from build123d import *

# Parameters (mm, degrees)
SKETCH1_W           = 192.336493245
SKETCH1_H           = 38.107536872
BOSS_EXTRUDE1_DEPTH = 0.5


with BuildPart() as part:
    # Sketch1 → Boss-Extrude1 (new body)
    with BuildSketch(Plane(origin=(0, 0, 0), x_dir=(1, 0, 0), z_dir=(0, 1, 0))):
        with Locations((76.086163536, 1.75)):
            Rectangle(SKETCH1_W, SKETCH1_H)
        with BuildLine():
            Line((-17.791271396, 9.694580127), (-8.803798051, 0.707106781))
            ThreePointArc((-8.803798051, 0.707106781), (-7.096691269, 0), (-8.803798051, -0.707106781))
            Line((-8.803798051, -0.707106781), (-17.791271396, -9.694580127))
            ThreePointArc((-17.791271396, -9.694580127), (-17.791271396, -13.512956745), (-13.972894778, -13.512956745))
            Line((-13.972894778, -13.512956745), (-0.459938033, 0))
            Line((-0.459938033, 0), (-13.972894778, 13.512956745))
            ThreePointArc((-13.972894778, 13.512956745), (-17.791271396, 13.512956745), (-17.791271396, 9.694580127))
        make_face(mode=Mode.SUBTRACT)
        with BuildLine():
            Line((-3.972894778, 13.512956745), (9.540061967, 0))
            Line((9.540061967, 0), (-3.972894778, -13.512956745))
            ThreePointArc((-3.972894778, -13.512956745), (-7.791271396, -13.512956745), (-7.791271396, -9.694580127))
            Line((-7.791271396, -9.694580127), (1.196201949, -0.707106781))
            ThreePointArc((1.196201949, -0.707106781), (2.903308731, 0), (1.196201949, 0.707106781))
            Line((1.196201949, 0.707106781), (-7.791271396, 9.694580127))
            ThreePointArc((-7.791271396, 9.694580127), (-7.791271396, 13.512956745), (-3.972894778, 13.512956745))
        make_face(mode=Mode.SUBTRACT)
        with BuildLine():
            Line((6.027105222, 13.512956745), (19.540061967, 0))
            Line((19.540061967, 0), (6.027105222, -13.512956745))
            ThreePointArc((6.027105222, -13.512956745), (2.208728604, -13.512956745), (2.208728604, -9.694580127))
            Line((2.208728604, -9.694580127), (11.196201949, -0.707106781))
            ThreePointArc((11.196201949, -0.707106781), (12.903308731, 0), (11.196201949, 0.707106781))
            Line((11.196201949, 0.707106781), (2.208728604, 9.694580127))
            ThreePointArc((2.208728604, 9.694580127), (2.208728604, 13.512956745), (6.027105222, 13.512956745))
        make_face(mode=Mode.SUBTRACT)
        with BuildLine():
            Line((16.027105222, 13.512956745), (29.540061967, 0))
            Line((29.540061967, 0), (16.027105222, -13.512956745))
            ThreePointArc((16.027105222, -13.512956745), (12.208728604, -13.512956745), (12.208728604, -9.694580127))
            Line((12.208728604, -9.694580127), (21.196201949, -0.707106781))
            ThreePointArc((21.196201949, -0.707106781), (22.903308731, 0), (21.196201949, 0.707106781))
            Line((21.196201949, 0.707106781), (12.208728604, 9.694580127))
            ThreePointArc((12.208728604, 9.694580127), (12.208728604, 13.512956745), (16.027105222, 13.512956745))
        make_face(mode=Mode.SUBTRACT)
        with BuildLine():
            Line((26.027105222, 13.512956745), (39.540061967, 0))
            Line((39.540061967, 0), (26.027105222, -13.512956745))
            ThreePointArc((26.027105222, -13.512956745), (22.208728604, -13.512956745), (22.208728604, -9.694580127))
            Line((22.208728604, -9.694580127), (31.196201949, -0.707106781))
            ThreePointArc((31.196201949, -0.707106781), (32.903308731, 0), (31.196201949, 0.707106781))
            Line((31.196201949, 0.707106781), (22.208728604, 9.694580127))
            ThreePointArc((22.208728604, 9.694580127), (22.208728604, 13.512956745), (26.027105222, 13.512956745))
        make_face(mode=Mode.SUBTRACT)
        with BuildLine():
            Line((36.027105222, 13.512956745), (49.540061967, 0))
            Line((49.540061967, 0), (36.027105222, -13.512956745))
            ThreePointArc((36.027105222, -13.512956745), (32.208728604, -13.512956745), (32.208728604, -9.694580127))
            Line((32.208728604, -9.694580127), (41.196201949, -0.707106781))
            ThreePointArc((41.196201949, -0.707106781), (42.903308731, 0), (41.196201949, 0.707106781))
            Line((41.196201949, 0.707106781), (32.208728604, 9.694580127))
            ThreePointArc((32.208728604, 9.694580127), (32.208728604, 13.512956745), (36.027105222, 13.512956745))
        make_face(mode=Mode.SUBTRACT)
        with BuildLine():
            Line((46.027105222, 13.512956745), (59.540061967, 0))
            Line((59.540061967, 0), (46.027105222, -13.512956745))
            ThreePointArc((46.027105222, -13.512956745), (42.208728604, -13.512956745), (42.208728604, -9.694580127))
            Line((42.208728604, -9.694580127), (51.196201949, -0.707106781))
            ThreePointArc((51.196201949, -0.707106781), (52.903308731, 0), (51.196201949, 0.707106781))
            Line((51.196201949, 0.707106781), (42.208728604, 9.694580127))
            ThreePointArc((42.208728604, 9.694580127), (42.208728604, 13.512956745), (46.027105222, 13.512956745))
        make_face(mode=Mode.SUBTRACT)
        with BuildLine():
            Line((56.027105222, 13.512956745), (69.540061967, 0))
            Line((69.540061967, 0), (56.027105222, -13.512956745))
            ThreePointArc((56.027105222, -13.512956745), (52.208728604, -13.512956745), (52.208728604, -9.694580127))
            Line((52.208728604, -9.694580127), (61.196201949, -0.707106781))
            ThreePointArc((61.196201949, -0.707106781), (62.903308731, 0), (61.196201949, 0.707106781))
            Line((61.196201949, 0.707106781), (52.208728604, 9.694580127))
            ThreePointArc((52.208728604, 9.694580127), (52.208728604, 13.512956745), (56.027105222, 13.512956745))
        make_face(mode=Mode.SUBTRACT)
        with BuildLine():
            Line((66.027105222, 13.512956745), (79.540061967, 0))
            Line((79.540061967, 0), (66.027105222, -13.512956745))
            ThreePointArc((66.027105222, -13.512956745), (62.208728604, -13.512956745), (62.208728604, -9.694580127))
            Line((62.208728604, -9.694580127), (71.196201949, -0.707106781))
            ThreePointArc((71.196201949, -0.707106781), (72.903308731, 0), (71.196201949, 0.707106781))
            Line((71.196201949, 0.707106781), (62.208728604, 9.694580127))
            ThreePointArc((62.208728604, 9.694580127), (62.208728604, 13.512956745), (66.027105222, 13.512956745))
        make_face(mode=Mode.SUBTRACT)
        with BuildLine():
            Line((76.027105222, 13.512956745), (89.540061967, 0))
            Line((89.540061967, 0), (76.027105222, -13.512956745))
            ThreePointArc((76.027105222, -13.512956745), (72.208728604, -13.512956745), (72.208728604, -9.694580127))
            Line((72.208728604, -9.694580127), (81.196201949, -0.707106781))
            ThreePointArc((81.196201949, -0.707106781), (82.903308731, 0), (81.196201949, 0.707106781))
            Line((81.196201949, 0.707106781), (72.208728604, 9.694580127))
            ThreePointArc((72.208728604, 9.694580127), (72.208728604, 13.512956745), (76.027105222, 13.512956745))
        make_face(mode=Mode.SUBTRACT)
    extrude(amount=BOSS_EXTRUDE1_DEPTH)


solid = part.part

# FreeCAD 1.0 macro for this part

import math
import FreeCAD as App
import Part
import Sketcher
from FreeCAD import Vector

doc = App.newDocument("Part")
body = doc.addObject("PartDesign::Body", "Body")

sketch1 = doc.addObject("Sketcher::SketchObject", "Sketch")
body.addObject(sketch1)
sketch1.AttachmentSupport = (doc.XZ_Plane, [""])
sketch1.MapMode = "FlatFace"
sketch1.addGeometry(Part.LineSegment(Vector(-20.1, -20.8, 0), Vector(-20.1, 17.3, 0)), False)
sketch1.addGeometry(Part.LineSegment(Vector(-20.1, 17.3, 0), Vector(172.3, 17.3, 0)), False)
sketch1.addGeometry(Part.LineSegment(Vector(172.3, 17.3, 0), Vector(172.3, -20.8, 0)), False)
sketch1.addGeometry(Part.LineSegment(Vector(172.3, -20.8, 0), Vector(-20.1, -20.8, 0)), False)
sketch1.addGeometry(Part.ArcOfCircle(Part.Circle(Vector(24.1, -11.6, 0), Vector(0, 0, 1), 2.7), math.radians(135), math.radians(315)), False)
sketch1.addGeometry(Part.LineSegment(Vector(26, -13.5, 0), Vector(39.5, 0, 0)), False)
sketch1.addGeometry(Part.LineSegment(Vector(39.5, 0, 0), Vector(26, 13.5, 0)), False)
sketch1.addGeometry(Part.ArcOfCircle(Part.Circle(Vector(24.1, 11.6, 0), Vector(0, 0, 1), 2.7), math.radians(45), math.radians(225)), False)
sketch1.addGeometry(Part.LineSegment(Vector(22.2, 9.7, 0), Vector(31.2, 0.7, 0)), False)
sketch1.addGeometry(Part.ArcOfCircle(Part.Circle(Vector(31.9, 0, 0), Vector(0, 0, 1), 1), math.radians(-135), math.radians(135)), False)
sketch1.addGeometry(Part.LineSegment(Vector(31.2, -0.7, 0), Vector(22.2, -9.7, 0)), False)
sketch1.addGeometry(Part.LineSegment(Vector(-8.8, -0.7, 0), Vector(-17.8, -9.7, 0)), False)
sketch1.addGeometry(Part.ArcOfCircle(Part.Circle(Vector(-15.9, -11.6, 0), Vector(0, 0, 1), 2.7), math.radians(135), math.radians(315)), False)
sketch1.addGeometry(Part.LineSegment(Vector(-14, -13.5, 0), Vector(-0.5, 0, 0)), False)
sketch1.addGeometry(Part.LineSegment(Vector(-0.5, 0, 0), Vector(-14, 13.5, 0)), False)
sketch1.addGeometry(Part.ArcOfCircle(Part.Circle(Vector(-15.9, 11.6, 0), Vector(0, 0, 1), 2.7), math.radians(45), math.radians(225)), False)
sketch1.addGeometry(Part.LineSegment(Vector(-17.8, 9.7, 0), Vector(-8.8, 0.7, 0)), False)
sketch1.addGeometry(Part.ArcOfCircle(Part.Circle(Vector(-8.1, 0, 0), Vector(0, 0, 1), 1), math.radians(-135), math.radians(135)), False)
sketch1.addGeometry(Part.ArcOfCircle(Part.Circle(Vector(-5.9, -11.6, 0), Vector(0, 0, 1), 2.7), math.radians(135), math.radians(315)), False)
sketch1.addGeometry(Part.LineSegment(Vector(-4, -13.5, 0), Vector(9.5, 0, 0)), False)
sketch1.addGeometry(Part.LineSegment(Vector(9.5, 0, 0), Vector(-4, 13.5, 0)), False)
sketch1.addGeometry(Part.ArcOfCircle(Part.Circle(Vector(-5.9, 11.6, 0), Vector(0, 0, 1), 2.7), math.radians(45), math.radians(225)), False)
sketch1.addGeometry(Part.LineSegment(Vector(-7.8, 9.7, 0), Vector(1.2, 0.7, 0)), False)
sketch1.addGeometry(Part.ArcOfCircle(Part.Circle(Vector(1.9, 0, 0), Vector(0, 0, 1), 1), math.radians(-135), math.radians(135)), False)
sketch1.addGeometry(Part.LineSegment(Vector(1.2, -0.7, 0), Vector(-7.8, -9.7, 0)), False)
sketch1.addGeometry(Part.ArcOfCircle(Part.Circle(Vector(4.1, -11.6, 0), Vector(0, 0, 1), 2.7), math.radians(135), math.radians(315)), False)
sketch1.addGeometry(Part.LineSegment(Vector(6, -13.5, 0), Vector(19.5, 0, 0)), False)
sketch1.addGeometry(Part.LineSegment(Vector(19.5, 0, 0), Vector(6, 13.5, 0)), False)
sketch1.addGeometry(Part.ArcOfCircle(Part.Circle(Vector(4.1, 11.6, 0), Vector(0, 0, 1), 2.7), math.radians(45), math.radians(225)), False)
sketch1.addGeometry(Part.LineSegment(Vector(2.2, 9.7, 0), Vector(11.2, 0.7, 0)), False)
sketch1.addGeometry(Part.ArcOfCircle(Part.Circle(Vector(11.9, 0, 0), Vector(0, 0, 1), 1), math.radians(-135), math.radians(135)), False)
sketch1.addGeometry(Part.LineSegment(Vector(11.2, -0.7, 0), Vector(2.2, -9.7, 0)), False)
sketch1.addGeometry(Part.ArcOfCircle(Part.Circle(Vector(14.1, -11.6, 0), Vector(0, 0, 1), 2.7), math.radians(135), math.radians(315)), False)
sketch1.addGeometry(Part.LineSegment(Vector(16, -13.5, 0), Vector(29.5, 0, 0)), False)
sketch1.addGeometry(Part.LineSegment(Vector(29.5, 0, 0), Vector(16, 13.5, 0)), False)
sketch1.addGeometry(Part.ArcOfCircle(Part.Circle(Vector(14.1, 11.6, 0), Vector(0, 0, 1), 2.7), math.radians(45), math.radians(225)), False)
sketch1.addGeometry(Part.LineSegment(Vector(12.2, 9.7, 0), Vector(21.2, 0.7, 0)), False)
sketch1.addGeometry(Part.ArcOfCircle(Part.Circle(Vector(21.9, 0, 0), Vector(0, 0, 1), 1), math.radians(-135), math.radians(135)), False)
sketch1.addGeometry(Part.LineSegment(Vector(21.2, -0.7, 0), Vector(12.2, -9.7, 0)), False)
sketch1.addGeometry(Part.ArcOfCircle(Part.Circle(Vector(34.1, -11.6, 0), Vector(0, 0, 1), 2.7), math.radians(135), math.radians(315)), False)
sketch1.addGeometry(Part.LineSegment(Vector(36, -13.5, 0), Vector(49.5, 0, 0)), False)
sketch1.addGeometry(Part.LineSegment(Vector(49.5, 0, 0), Vector(36, 13.5, 0)), False)
sketch1.addGeometry(Part.ArcOfCircle(Part.Circle(Vector(34.1, 11.6, 0), Vector(0, 0, 1), 2.7), math.radians(45), math.radians(225)), False)
sketch1.addGeometry(Part.LineSegment(Vector(32.2, 9.7, 0), Vector(41.2, 0.7, 0)), False)
sketch1.addGeometry(Part.ArcOfCircle(Part.Circle(Vector(41.9, 0, 0), Vector(0, 0, 1), 1), math.radians(-135), math.radians(135)), False)
sketch1.addGeometry(Part.LineSegment(Vector(41.2, -0.7, 0), Vector(32.2, -9.7, 0)), False)
sketch1.addGeometry(Part.ArcOfCircle(Part.Circle(Vector(44.1, -11.6, 0), Vector(0, 0, 1), 2.7), math.radians(135), math.radians(315)), False)
sketch1.addGeometry(Part.LineSegment(Vector(46, -13.5, 0), Vector(59.5, 0, 0)), False)
sketch1.addGeometry(Part.LineSegment(Vector(59.5, 0, 0), Vector(46, 13.5, 0)), False)
sketch1.addGeometry(Part.ArcOfCircle(Part.Circle(Vector(44.1, 11.6, 0), Vector(0, 0, 1), 2.7), math.radians(45), math.radians(225)), False)
sketch1.addGeometry(Part.LineSegment(Vector(42.2, 9.7, 0), Vector(51.2, 0.7, 0)), False)
sketch1.addGeometry(Part.ArcOfCircle(Part.Circle(Vector(51.9, 0, 0), Vector(0, 0, 1), 1), math.radians(-135), math.radians(135)), False)
sketch1.addGeometry(Part.LineSegment(Vector(51.2, -0.7, 0), Vector(42.2, -9.7, 0)), False)
sketch1.addGeometry(Part.ArcOfCircle(Part.Circle(Vector(54.1, -11.6, 0), Vector(0, 0, 1), 2.7), math.radians(135), math.radians(315)), False)
sketch1.addGeometry(Part.LineSegment(Vector(56, -13.5, 0), Vector(69.5, 0, 0)), False)
sketch1.addGeometry(Part.LineSegment(Vector(69.5, 0, 0), Vector(56, 13.5, 0)), False)
sketch1.addGeometry(Part.ArcOfCircle(Part.Circle(Vector(54.1, 11.6, 0), Vector(0, 0, 1), 2.7), math.radians(45), math.radians(225)), False)
sketch1.addGeometry(Part.LineSegment(Vector(52.2, 9.7, 0), Vector(61.2, 0.7, 0)), False)
sketch1.addGeometry(Part.ArcOfCircle(Part.Circle(Vector(61.9, 0, 0), Vector(0, 0, 1), 1), math.radians(-135), math.radians(135)), False)
sketch1.addGeometry(Part.LineSegment(Vector(61.2, -0.7, 0), Vector(52.2, -9.7, 0)), False)
sketch1.addGeometry(Part.ArcOfCircle(Part.Circle(Vector(64.1, -11.6, 0), Vector(0, 0, 1), 2.7), math.radians(135), math.radians(315)), False)
sketch1.addGeometry(Part.LineSegment(Vector(66, -13.5, 0), Vector(79.5, 0, 0)), False)
sketch1.addGeometry(Part.LineSegment(Vector(79.5, 0, 0), Vector(66, 13.5, 0)), False)
sketch1.addGeometry(Part.ArcOfCircle(Part.Circle(Vector(64.1, 11.6, 0), Vector(0, 0, 1), 2.7), math.radians(45), math.radians(225)), False)
sketch1.addGeometry(Part.LineSegment(Vector(62.2, 9.7, 0), Vector(71.2, 0.7, 0)), False)
sketch1.addGeometry(Part.ArcOfCircle(Part.Circle(Vector(71.9, 0, 0), Vector(0, 0, 1), 1), math.radians(-135), math.radians(135)), False)
sketch1.addGeometry(Part.LineSegment(Vector(71.2, -0.7, 0), Vector(62.2, -9.7, 0)), False)
sketch1.addGeometry(Part.ArcOfCircle(Part.Circle(Vector(74.1, -11.6, 0), Vector(0, 0, 1), 2.7), math.radians(135), math.radians(315)), False)
sketch1.addGeometry(Part.LineSegment(Vector(76, -13.5, 0), Vector(89.5, 0, 0)), False)
sketch1.addGeometry(Part.LineSegment(Vector(89.5, 0, 0), Vector(76, 13.5, 0)), False)
sketch1.addGeometry(Part.ArcOfCircle(Part.Circle(Vector(74.1, 11.6, 0), Vector(0, 0, 1), 2.7), math.radians(45), math.radians(225)), False)
sketch1.addGeometry(Part.LineSegment(Vector(72.2, 9.7, 0), Vector(81.2, 0.7, 0)), False)
sketch1.addGeometry(Part.ArcOfCircle(Part.Circle(Vector(81.9, 0, 0), Vector(0, 0, 1), 1), math.radians(-135), math.radians(135)), False)
sketch1.addGeometry(Part.LineSegment(Vector(81.2, -0.7, 0), Vector(72.2, -9.7, 0)), False)
sketch1.addConstraint(Sketcher.Constraint("Coincident", 0, 2, 1, 1))
sketch1.addConstraint(Sketcher.Constraint("Coincident", 1, 2, 2, 1))
sketch1.addConstraint(Sketcher.Constraint("Coincident", 2, 2, 3, 1))
sketch1.addConstraint(Sketcher.Constraint("Coincident", 3, 2, 0, 1))
sketch1.addConstraint(Sketcher.Constraint("Tangent", 4, 2, 5, 1))
sketch1.addConstraint(Sketcher.Constraint("Coincident", 5, 2, 6, 1))
sketch1.addConstraint(Sketcher.Constraint("Tangent", 6, 2, 7, 1))
sketch1.addConstraint(Sketcher.Constraint("Tangent", 7, 2, 8, 1))
sketch1.addConstraint(Sketcher.Constraint("Coincident", 8, 2, 9, 2))
sketch1.addConstraint(Sketcher.Constraint("Coincident", 9, 1, 10, 1))
sketch1.addConstraint(Sketcher.Constraint("Tangent", 10, 2, 4, 1))
sketch1.addConstraint(Sketcher.Constraint("Tangent", 11, 2, 12, 1))
sketch1.addConstraint(Sketcher.Constraint("Tangent", 12, 2, 13, 1))
sketch1.addConstraint(Sketcher.Constraint("Coincident", 13, 2, 14, 1))
sketch1.addConstraint(Sketcher.Constraint("Tangent", 14, 2, 15, 1))
sketch1.addConstraint(Sketcher.Constraint("Tangent", 15, 2, 16, 1))
sketch1.addConstraint(Sketcher.Constraint("Coincident", 16, 2, 17, 2))
sketch1.addConstraint(Sketcher.Constraint("Coincident", 17, 1, 11, 1))
sketch1.addConstraint(Sketcher.Constraint("Tangent", 18, 2, 19, 1))
sketch1.addConstraint(Sketcher.Constraint("Coincident", 19, 2, 20, 1))
sketch1.addConstraint(Sketcher.Constraint("Tangent", 20, 2, 21, 1))
sketch1.addConstraint(Sketcher.Constraint("Tangent", 21, 2, 22, 1))
sketch1.addConstraint(Sketcher.Constraint("Coincident", 22, 2, 23, 2))
sketch1.addConstraint(Sketcher.Constraint("Coincident", 23, 1, 24, 1))
sketch1.addConstraint(Sketcher.Constraint("Tangent", 24, 2, 18, 1))
sketch1.addConstraint(Sketcher.Constraint("Tangent", 25, 2, 26, 1))
sketch1.addConstraint(Sketcher.Constraint("Coincident", 26, 2, 27, 1))
sketch1.addConstraint(Sketcher.Constraint("Tangent", 27, 2, 28, 1))
sketch1.addConstraint(Sketcher.Constraint("Tangent", 28, 2, 29, 1))
sketch1.addConstraint(Sketcher.Constraint("Coincident", 29, 2, 30, 2))
sketch1.addConstraint(Sketcher.Constraint("Coincident", 30, 1, 31, 1))
sketch1.addConstraint(Sketcher.Constraint("Tangent", 31, 2, 25, 1))
sketch1.addConstraint(Sketcher.Constraint("Tangent", 32, 2, 33, 1))
sketch1.addConstraint(Sketcher.Constraint("Coincident", 33, 2, 34, 1))
sketch1.addConstraint(Sketcher.Constraint("Tangent", 34, 2, 35, 1))
sketch1.addConstraint(Sketcher.Constraint("Tangent", 35, 2, 36, 1))
sketch1.addConstraint(Sketcher.Constraint("Coincident", 36, 2, 37, 2))
sketch1.addConstraint(Sketcher.Constraint("Coincident", 37, 1, 38, 1))
sketch1.addConstraint(Sketcher.Constraint("Tangent", 38, 2, 32, 1))
sketch1.addConstraint(Sketcher.Constraint("Tangent", 39, 2, 40, 1))
sketch1.addConstraint(Sketcher.Constraint("Coincident", 40, 2, 41, 1))
sketch1.addConstraint(Sketcher.Constraint("Tangent", 41, 2, 42, 1))
sketch1.addConstraint(Sketcher.Constraint("Tangent", 42, 2, 43, 1))
sketch1.addConstraint(Sketcher.Constraint("Coincident", 43, 2, 44, 2))
sketch1.addConstraint(Sketcher.Constraint("Coincident", 44, 1, 45, 1))
sketch1.addConstraint(Sketcher.Constraint("Tangent", 45, 2, 39, 1))
sketch1.addConstraint(Sketcher.Constraint("Tangent", 46, 2, 47, 1))
sketch1.addConstraint(Sketcher.Constraint("Coincident", 47, 2, 48, 1))
sketch1.addConstraint(Sketcher.Constraint("Tangent", 48, 2, 49, 1))
sketch1.addConstraint(Sketcher.Constraint("Tangent", 49, 2, 50, 1))
sketch1.addConstraint(Sketcher.Constraint("Coincident", 50, 2, 51, 2))
sketch1.addConstraint(Sketcher.Constraint("Coincident", 51, 1, 52, 1))
sketch1.addConstraint(Sketcher.Constraint("Tangent", 52, 2, 46, 1))
sketch1.addConstraint(Sketcher.Constraint("Tangent", 53, 2, 54, 1))
sketch1.addConstraint(Sketcher.Constraint("Coincident", 54, 2, 55, 1))
sketch1.addConstraint(Sketcher.Constraint("Tangent", 55, 2, 56, 1))
sketch1.addConstraint(Sketcher.Constraint("Tangent", 56, 2, 57, 1))
sketch1.addConstraint(Sketcher.Constraint("Coincident", 57, 2, 58, 2))
sketch1.addConstraint(Sketcher.Constraint("Coincident", 58, 1, 59, 1))
sketch1.addConstraint(Sketcher.Constraint("Tangent", 59, 2, 53, 1))
sketch1.addConstraint(Sketcher.Constraint("Tangent", 60, 2, 61, 1))
sketch1.addConstraint(Sketcher.Constraint("Coincident", 61, 2, 62, 1))
sketch1.addConstraint(Sketcher.Constraint("Tangent", 62, 2, 63, 1))
sketch1.addConstraint(Sketcher.Constraint("Tangent", 63, 2, 64, 1))
sketch1.addConstraint(Sketcher.Constraint("Coincident", 64, 2, 65, 2))
sketch1.addConstraint(Sketcher.Constraint("Coincident", 65, 1, 66, 1))
sketch1.addConstraint(Sketcher.Constraint("Tangent", 66, 2, 60, 1))
sketch1.addConstraint(Sketcher.Constraint("Tangent", 67, 2, 68, 1))
sketch1.addConstraint(Sketcher.Constraint("Coincident", 68, 2, 69, 1))
sketch1.addConstraint(Sketcher.Constraint("Tangent", 69, 2, 70, 1))
sketch1.addConstraint(Sketcher.Constraint("Tangent", 70, 2, 71, 1))
sketch1.addConstraint(Sketcher.Constraint("Coincident", 71, 2, 72, 2))
sketch1.addConstraint(Sketcher.Constraint("Coincident", 72, 1, 73, 1))
sketch1.addConstraint(Sketcher.Constraint("Tangent", 73, 2, 67, 1))
sketch1.addConstraint(Sketcher.Constraint("Vertical", 0))
sketch1.addConstraint(Sketcher.Constraint("Horizontal", 1))
sketch1.addConstraint(Sketcher.Constraint("Vertical", 2))
sketch1.addConstraint(Sketcher.Constraint("Horizontal", 3))
sketch1.addConstraint(Sketcher.Constraint("Equal", 4, 7))
sketch1.addConstraint(Sketcher.Constraint("Equal", 7, 12))
sketch1.addConstraint(Sketcher.Constraint("Equal", 12, 15))
sketch1.addConstraint(Sketcher.Constraint("Equal", 9, 17))
sketch1.addConstraint(Sketcher.Constraint("Equal", 15, 18))
sketch1.addConstraint(Sketcher.Constraint("Equal", 18, 21))
sketch1.addConstraint(Sketcher.Constraint("Equal", 17, 23))
sketch1.addConstraint(Sketcher.Constraint("Equal", 21, 25))
sketch1.addConstraint(Sketcher.Constraint("Equal", 25, 28))
sketch1.addConstraint(Sketcher.Constraint("Equal", 23, 30))
sketch1.addConstraint(Sketcher.Constraint("Equal", 28, 32))
sketch1.addConstraint(Sketcher.Constraint("Equal", 32, 35))
sketch1.addConstraint(Sketcher.Constraint("Equal", 30, 37))
sketch1.addConstraint(Sketcher.Constraint("Equal", 35, 39))
sketch1.addConstraint(Sketcher.Constraint("Equal", 39, 42))
sketch1.addConstraint(Sketcher.Constraint("Equal", 37, 44))
sketch1.addConstraint(Sketcher.Constraint("Equal", 42, 46))
sketch1.addConstraint(Sketcher.Constraint("Equal", 46, 49))
sketch1.addConstraint(Sketcher.Constraint("Equal", 44, 51))
sketch1.addConstraint(Sketcher.Constraint("Equal", 49, 53))
sketch1.addConstraint(Sketcher.Constraint("Equal", 53, 56))
sketch1.addConstraint(Sketcher.Constraint("Equal", 51, 58))
sketch1.addConstraint(Sketcher.Constraint("Equal", 56, 60))
sketch1.addConstraint(Sketcher.Constraint("Equal", 60, 63))
sketch1.addConstraint(Sketcher.Constraint("Equal", 58, 65))
sketch1.addConstraint(Sketcher.Constraint("Equal", 63, 67))
sketch1.addConstraint(Sketcher.Constraint("Equal", 67, 70))
sketch1.addConstraint(Sketcher.Constraint("Equal", 65, 72))
sketch1.addConstraint(Sketcher.Constraint("Symmetric", 4, 3, 7, 3, -1))
sketch1.addConstraint(Sketcher.Constraint("Symmetric", 12, 3, 15, 3, -1))
sketch1.addConstraint(Sketcher.Constraint("Symmetric", 18, 3, 21, 3, -1))
sketch1.addConstraint(Sketcher.Constraint("Symmetric", 25, 3, 28, 3, -1))
sketch1.addConstraint(Sketcher.Constraint("Symmetric", 32, 3, 35, 3, -1))
sketch1.addConstraint(Sketcher.Constraint("Symmetric", 39, 3, 42, 3, -1))
sketch1.addConstraint(Sketcher.Constraint("Symmetric", 46, 3, 49, 3, -1))
sketch1.addConstraint(Sketcher.Constraint("Symmetric", 53, 3, 56, 3, -1))
sketch1.addConstraint(Sketcher.Constraint("Symmetric", 60, 3, 63, 3, -1))
sketch1.addConstraint(Sketcher.Constraint("Symmetric", 67, 3, 70, 3, -1))
sketch1.addConstraint(Sketcher.Constraint("Symmetric", 8, 2, 9, 1, -1))
sketch1.addConstraint(Sketcher.Constraint("Symmetric", 16, 2, 17, 1, -1))
sketch1.addConstraint(Sketcher.Constraint("Symmetric", 22, 2, 23, 1, -1))
sketch1.addConstraint(Sketcher.Constraint("Symmetric", 29, 2, 30, 1, -1))
sketch1.addConstraint(Sketcher.Constraint("Symmetric", 36, 2, 37, 1, -1))
sketch1.addConstraint(Sketcher.Constraint("Symmetric", 43, 2, 44, 1, -1))
sketch1.addConstraint(Sketcher.Constraint("Symmetric", 50, 2, 51, 1, -1))
sketch1.addConstraint(Sketcher.Constraint("Symmetric", 57, 2, 58, 1, -1))
sketch1.addConstraint(Sketcher.Constraint("Symmetric", 64, 2, 65, 1, -1))
sketch1.addConstraint(Sketcher.Constraint("Symmetric", 71, 2, 72, 1, -1))
sketch1.addConstraint(Sketcher.Constraint("PointOnObject", 5, 2, -1))
sketch1.addConstraint(Sketcher.Constraint("PointOnObject", 13, 2, -1))
sketch1.addConstraint(Sketcher.Constraint("PointOnObject", 19, 2, -1))
sketch1.addConstraint(Sketcher.Constraint("PointOnObject", 26, 2, -1))
sketch1.addConstraint(Sketcher.Constraint("PointOnObject", 33, 2, -1))
sketch1.addConstraint(Sketcher.Constraint("PointOnObject", 40, 2, -1))
sketch1.addConstraint(Sketcher.Constraint("PointOnObject", 47, 2, -1))
sketch1.addConstraint(Sketcher.Constraint("PointOnObject", 54, 2, -1))
sketch1.addConstraint(Sketcher.Constraint("PointOnObject", 61, 2, -1))
sketch1.addConstraint(Sketcher.Constraint("PointOnObject", 68, 2, -1))
sketch1.addConstraint(Sketcher.Constraint("Perpendicular", 5, 6))
sketch1.addConstraint(Sketcher.Constraint("Parallel", 6, 8))
sketch1.addConstraint(Sketcher.Constraint("Parallel", 10, 11))
sketch1.addConstraint(Sketcher.Constraint("Parallel", 11, 13))
sketch1.addConstraint(Sketcher.Constraint("Perpendicular", 16, 19))
sketch1.addConstraint(Sketcher.Constraint("Parallel", 20, 22))
sketch1.addConstraint(Sketcher.Constraint("Parallel", 24, 26))
sketch1.addConstraint(Sketcher.Constraint("Parallel", 27, 29))
sketch1.addConstraint(Sketcher.Constraint("Parallel", 31, 33))
sketch1.addConstraint(Sketcher.Constraint("Parallel", 34, 36))
sketch1.addConstraint(Sketcher.Constraint("Parallel", 38, 40))
sketch1.addConstraint(Sketcher.Constraint("Parallel", 41, 43))
sketch1.addConstraint(Sketcher.Constraint("Parallel", 45, 47))
sketch1.addConstraint(Sketcher.Constraint("Parallel", 48, 50))
sketch1.addConstraint(Sketcher.Constraint("Parallel", 52, 54))
sketch1.addConstraint(Sketcher.Constraint("Parallel", 55, 57))
sketch1.addConstraint(Sketcher.Constraint("Parallel", 59, 61))
sketch1.addConstraint(Sketcher.Constraint("Parallel", 62, 64))
sketch1.addConstraint(Sketcher.Constraint("Parallel", 66, 68))
sketch1.addConstraint(Sketcher.Constraint("Parallel", 69, 71))
sketch1.addConstraint(Sketcher.Constraint("Horizontal", 4, 3, 12, 3))
sketch1.addConstraint(Sketcher.Constraint("Horizontal", 12, 3, 18, 3))
sketch1.addConstraint(Sketcher.Constraint("Horizontal", 18, 3, 25, 3))
sketch1.addConstraint(Sketcher.Constraint("Horizontal", 25, 3, 32, 3))
sketch1.addConstraint(Sketcher.Constraint("Horizontal", 32, 3, 39, 3))
sketch1.addConstraint(Sketcher.Constraint("Horizontal", 39, 3, 46, 3))
sketch1.addConstraint(Sketcher.Constraint("Horizontal", 46, 3, 53, 3))
sketch1.addConstraint(Sketcher.Constraint("Horizontal", 53, 3, 60, 3))
sketch1.addConstraint(Sketcher.Constraint("Horizontal", 60, 3, 67, 3))
sketch1.addConstraint(Sketcher.Constraint("Horizontal", 8, 2, 16, 2))
sketch1.addConstraint(Sketcher.Constraint("Horizontal", 16, 2, 22, 2))
sketch1.addConstraint(Sketcher.Constraint("Horizontal", 22, 2, 29, 2))
sketch1.addConstraint(Sketcher.Constraint("Horizontal", 29, 2, 36, 2))
sketch1.addConstraint(Sketcher.Constraint("Horizontal", 36, 2, 43, 2))
sketch1.addConstraint(Sketcher.Constraint("Horizontal", 43, 2, 50, 2))
sketch1.addConstraint(Sketcher.Constraint("Horizontal", 50, 2, 57, 2))
sketch1.addConstraint(Sketcher.Constraint("Horizontal", 57, 2, 64, 2))
sketch1.addConstraint(Sketcher.Constraint("Horizontal", 64, 2, 71, 2))
sketch1.addConstraint(Sketcher.Constraint("Radius", 9, 1.0))
sketch1.addConstraint(Sketcher.Constraint("Radius", 4, 2.7))
sketch1.addConstraint(Sketcher.Constraint("DistanceX", -1, 1, 8, 2, 31.196202))
sketch1.addConstraint(Sketcher.Constraint("DistanceX", 16, 2, -1, 1, 8.803798))
sketch1.addConstraint(Sketcher.Constraint("DistanceX", -1, 1, 22, 2, 1.196202))
sketch1.addConstraint(Sketcher.Constraint("DistanceX", -1, 1, 29, 2, 11.196202))
sketch1.addConstraint(Sketcher.Constraint("DistanceX", -1, 1, 36, 2, 21.196202))
sketch1.addConstraint(Sketcher.Constraint("DistanceX", -1, 1, 43, 2, 41.196202))
sketch1.addConstraint(Sketcher.Constraint("DistanceX", -1, 1, 50, 2, 51.196202))
sketch1.addConstraint(Sketcher.Constraint("DistanceX", -1, 1, 57, 2, 61.196202))
sketch1.addConstraint(Sketcher.Constraint("DistanceX", -1, 1, 64, 2, 71.196202))
sketch1.addConstraint(Sketcher.Constraint("DistanceX", -1, 1, 71, 2, 81.196202))
sketch1.addConstraint(Sketcher.Constraint("DistanceX", 1, 1, 1, 2, 192.336493))
sketch1.addConstraint(Sketcher.Constraint("DistanceY", 0, 1, 0, 2, 38.107537))
sketch1.addConstraint(Sketcher.Constraint("DistanceY", 4, 3, -1, 1, 11.603768))
sketch1.addConstraint(Sketcher.Constraint("DistanceX", -1, 1, 9, 3, 31.903309))
sketch1.addConstraint(Sketcher.Constraint("DistanceY", -1, 1, 0, 2, 17.303768))
sketch1.addConstraint(Sketcher.Constraint("DistanceX", -1, 1, 1, 2, 172.25441))
pad1 = doc.addObject("PartDesign::Pad", "Pad")
body.addObject(pad1)
pad1.Profile = sketch1
pad1.Length = 0.5
pad1.Reversed = True

doc.recompute()
